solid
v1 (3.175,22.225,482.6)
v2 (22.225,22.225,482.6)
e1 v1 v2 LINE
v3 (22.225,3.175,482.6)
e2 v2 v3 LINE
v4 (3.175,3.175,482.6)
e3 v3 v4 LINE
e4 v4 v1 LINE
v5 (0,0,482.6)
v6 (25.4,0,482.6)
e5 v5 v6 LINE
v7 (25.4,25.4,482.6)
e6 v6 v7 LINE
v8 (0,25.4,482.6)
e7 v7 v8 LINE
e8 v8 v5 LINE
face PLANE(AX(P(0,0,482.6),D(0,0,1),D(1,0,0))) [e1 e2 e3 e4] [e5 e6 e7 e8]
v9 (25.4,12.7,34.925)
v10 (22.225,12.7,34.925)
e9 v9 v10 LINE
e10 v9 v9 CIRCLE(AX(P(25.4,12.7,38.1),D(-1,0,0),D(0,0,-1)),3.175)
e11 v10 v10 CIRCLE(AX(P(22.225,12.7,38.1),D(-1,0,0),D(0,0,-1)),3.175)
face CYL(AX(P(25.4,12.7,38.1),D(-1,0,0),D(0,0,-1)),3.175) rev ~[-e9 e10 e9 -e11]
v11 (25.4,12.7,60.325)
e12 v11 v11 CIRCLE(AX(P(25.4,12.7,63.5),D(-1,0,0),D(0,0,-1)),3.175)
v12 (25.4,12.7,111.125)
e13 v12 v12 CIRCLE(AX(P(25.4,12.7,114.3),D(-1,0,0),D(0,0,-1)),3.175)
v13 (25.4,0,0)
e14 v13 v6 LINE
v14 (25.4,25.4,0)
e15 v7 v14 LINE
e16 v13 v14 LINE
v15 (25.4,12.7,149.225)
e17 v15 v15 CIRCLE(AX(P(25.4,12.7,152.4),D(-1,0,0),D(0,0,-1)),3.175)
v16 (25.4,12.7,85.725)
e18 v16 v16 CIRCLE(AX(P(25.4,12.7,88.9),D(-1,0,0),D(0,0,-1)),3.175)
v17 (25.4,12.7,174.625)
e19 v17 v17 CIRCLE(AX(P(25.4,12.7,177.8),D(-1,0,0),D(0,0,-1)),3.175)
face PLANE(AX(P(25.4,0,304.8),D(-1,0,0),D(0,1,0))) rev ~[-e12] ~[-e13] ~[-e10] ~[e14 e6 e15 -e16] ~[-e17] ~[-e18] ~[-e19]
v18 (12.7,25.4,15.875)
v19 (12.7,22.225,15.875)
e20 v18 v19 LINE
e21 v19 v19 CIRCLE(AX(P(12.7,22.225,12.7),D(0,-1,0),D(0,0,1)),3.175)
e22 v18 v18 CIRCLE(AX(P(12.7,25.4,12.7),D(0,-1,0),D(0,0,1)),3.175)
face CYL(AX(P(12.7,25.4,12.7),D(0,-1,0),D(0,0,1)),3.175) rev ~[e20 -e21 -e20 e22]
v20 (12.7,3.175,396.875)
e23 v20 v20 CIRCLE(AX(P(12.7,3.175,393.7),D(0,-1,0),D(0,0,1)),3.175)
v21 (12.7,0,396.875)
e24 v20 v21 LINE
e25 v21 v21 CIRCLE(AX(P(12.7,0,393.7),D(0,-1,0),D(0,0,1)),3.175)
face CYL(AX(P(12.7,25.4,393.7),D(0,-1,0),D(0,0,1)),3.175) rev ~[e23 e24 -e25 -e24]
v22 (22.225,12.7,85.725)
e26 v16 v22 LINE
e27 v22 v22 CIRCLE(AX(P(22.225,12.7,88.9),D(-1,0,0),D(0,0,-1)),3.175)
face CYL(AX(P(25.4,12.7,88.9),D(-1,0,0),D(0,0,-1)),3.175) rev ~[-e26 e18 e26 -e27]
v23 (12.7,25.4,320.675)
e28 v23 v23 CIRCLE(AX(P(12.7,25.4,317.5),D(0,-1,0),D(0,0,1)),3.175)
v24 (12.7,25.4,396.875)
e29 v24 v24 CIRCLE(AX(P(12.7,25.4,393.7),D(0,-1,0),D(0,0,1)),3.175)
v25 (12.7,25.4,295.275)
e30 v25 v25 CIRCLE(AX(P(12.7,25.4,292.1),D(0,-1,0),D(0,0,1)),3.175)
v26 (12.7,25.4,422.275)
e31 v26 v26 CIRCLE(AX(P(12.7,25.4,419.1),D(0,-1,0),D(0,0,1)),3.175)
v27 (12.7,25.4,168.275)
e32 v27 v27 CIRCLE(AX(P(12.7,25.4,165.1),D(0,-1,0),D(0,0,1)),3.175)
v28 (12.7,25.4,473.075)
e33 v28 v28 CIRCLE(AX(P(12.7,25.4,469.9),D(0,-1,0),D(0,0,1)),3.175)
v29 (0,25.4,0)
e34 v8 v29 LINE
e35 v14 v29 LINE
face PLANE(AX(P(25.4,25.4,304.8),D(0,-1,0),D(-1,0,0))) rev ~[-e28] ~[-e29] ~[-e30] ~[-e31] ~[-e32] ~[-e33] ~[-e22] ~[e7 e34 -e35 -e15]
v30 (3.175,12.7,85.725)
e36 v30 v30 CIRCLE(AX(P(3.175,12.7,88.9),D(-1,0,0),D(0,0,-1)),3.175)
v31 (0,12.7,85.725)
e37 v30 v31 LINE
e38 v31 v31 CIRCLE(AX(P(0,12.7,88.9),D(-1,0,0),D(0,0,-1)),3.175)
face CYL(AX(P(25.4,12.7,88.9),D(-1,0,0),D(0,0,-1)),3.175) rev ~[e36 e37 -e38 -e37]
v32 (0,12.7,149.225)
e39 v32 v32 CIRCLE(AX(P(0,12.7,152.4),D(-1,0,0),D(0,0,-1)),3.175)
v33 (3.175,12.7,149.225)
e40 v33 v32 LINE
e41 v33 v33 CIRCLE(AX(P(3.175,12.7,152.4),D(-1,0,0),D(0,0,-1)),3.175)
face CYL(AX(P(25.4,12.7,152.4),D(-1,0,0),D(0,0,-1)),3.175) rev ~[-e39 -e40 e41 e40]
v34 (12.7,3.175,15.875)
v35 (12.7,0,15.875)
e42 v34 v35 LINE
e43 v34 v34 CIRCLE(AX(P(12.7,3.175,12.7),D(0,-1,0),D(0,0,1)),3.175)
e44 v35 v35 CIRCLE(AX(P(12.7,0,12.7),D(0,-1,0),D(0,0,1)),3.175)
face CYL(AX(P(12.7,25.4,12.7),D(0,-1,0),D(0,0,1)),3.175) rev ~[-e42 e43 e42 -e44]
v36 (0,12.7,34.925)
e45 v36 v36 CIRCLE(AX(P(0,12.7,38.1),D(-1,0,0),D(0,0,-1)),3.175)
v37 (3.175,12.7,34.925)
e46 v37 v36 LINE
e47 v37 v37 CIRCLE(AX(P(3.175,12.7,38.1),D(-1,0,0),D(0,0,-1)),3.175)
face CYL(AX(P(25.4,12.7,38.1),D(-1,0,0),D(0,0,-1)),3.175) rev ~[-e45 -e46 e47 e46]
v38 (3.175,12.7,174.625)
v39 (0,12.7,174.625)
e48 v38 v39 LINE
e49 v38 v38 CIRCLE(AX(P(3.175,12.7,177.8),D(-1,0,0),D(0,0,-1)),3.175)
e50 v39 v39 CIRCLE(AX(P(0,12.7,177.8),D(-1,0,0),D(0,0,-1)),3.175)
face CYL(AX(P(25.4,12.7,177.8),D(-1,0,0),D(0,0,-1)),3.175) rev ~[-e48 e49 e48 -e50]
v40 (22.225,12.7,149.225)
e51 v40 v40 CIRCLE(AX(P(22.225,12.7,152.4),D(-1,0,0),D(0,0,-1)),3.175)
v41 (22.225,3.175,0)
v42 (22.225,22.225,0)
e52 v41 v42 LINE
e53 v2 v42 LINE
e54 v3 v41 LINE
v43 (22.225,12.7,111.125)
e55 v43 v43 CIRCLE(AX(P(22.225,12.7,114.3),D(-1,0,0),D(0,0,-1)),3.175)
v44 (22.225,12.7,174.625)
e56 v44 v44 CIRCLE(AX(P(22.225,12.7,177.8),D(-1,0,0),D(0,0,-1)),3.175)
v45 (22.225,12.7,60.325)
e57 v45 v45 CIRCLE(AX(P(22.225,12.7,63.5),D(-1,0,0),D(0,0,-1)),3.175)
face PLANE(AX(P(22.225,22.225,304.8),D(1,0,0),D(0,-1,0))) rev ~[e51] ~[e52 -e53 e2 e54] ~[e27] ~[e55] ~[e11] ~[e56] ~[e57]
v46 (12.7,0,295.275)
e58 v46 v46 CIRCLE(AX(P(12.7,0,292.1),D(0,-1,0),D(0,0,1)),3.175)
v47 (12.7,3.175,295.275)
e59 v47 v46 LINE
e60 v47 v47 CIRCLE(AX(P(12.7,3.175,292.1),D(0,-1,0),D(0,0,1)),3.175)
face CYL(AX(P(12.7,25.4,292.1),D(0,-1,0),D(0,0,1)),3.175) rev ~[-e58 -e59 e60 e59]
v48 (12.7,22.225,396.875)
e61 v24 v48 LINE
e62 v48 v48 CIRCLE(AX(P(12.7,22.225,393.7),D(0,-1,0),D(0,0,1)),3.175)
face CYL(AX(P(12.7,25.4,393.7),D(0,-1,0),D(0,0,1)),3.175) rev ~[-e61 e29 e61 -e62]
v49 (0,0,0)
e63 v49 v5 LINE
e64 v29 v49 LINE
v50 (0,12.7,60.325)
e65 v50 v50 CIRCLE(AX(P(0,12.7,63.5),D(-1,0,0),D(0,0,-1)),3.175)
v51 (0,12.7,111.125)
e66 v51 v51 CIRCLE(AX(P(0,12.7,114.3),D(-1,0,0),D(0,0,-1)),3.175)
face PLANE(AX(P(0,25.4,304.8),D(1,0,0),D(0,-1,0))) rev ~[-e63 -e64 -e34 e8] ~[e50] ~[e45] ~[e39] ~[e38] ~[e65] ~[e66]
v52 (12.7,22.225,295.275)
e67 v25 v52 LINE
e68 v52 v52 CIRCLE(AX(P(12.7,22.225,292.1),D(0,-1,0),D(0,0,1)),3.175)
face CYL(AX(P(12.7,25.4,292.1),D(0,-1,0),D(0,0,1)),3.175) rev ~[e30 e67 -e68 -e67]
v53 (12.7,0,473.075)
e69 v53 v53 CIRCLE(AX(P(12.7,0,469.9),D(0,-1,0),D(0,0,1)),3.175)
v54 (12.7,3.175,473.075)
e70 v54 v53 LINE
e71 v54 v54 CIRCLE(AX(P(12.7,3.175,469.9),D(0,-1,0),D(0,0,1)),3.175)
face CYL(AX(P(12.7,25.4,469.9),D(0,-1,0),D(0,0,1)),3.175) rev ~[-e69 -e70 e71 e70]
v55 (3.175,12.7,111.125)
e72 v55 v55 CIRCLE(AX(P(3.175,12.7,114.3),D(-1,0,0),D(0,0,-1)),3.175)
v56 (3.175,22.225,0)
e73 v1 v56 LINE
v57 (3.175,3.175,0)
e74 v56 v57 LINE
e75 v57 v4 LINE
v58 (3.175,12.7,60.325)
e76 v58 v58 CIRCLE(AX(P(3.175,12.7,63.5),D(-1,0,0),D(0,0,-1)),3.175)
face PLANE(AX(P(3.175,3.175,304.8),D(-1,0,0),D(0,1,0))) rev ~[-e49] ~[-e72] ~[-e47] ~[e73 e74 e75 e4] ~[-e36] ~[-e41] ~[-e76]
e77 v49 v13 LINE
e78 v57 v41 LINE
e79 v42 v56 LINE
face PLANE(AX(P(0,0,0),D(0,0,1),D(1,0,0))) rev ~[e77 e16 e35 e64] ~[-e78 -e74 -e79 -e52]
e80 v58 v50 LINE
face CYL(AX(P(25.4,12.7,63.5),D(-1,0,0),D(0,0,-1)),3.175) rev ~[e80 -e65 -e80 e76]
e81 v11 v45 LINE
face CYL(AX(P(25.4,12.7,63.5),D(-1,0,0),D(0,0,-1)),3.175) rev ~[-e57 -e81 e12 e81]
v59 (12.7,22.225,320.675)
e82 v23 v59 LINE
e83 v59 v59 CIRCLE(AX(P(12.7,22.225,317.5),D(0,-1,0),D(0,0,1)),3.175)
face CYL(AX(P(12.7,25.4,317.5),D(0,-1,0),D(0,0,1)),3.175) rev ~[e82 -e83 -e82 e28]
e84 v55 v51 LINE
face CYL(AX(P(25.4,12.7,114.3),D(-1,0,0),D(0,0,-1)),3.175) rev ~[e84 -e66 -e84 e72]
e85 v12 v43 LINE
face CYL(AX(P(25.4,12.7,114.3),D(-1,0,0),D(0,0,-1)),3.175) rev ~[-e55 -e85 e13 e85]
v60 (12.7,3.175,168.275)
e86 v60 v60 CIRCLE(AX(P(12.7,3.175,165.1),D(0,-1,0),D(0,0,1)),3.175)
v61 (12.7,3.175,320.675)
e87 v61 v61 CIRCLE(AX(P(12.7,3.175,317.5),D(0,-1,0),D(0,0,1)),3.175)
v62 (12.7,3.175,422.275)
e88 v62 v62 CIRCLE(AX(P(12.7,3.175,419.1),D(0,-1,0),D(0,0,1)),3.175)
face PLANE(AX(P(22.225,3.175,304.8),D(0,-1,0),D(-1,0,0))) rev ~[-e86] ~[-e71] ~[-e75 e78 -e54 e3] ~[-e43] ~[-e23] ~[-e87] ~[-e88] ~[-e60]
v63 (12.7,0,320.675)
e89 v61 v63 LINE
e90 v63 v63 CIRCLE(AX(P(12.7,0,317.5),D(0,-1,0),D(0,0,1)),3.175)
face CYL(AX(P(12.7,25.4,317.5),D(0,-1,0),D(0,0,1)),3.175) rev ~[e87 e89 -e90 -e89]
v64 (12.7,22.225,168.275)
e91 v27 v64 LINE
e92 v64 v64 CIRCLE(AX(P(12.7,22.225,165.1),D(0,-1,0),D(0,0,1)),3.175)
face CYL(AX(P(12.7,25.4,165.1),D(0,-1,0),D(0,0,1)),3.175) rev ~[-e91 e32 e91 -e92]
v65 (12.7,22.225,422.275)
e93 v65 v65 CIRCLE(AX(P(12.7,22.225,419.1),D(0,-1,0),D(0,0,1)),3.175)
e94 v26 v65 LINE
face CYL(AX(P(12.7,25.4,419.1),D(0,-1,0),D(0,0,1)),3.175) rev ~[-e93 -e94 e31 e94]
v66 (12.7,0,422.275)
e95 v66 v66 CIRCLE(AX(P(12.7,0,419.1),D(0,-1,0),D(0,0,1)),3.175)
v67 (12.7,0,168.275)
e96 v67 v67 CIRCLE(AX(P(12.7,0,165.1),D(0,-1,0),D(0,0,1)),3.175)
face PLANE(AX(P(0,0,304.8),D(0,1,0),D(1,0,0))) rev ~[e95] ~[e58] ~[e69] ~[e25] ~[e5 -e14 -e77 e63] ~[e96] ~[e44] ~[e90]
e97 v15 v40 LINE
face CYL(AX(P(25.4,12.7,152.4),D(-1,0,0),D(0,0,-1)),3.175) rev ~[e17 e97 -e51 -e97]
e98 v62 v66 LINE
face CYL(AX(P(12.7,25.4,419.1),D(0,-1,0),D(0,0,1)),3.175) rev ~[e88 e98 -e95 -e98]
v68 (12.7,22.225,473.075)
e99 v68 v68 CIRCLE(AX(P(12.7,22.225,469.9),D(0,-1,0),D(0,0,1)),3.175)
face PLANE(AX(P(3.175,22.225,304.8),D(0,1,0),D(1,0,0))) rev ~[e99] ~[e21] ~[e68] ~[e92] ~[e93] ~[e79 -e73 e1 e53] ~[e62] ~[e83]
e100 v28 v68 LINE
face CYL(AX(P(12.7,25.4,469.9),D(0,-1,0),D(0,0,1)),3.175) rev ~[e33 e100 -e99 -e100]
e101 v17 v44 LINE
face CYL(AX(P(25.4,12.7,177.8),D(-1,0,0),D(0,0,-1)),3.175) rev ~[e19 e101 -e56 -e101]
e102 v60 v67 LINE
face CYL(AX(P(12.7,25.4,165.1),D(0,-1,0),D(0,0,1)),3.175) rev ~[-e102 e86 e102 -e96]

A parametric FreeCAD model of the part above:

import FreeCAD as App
import Part
import Sketcher
from FreeCAD import Vector
Q = App.Units.Quantity


def add_polygon(sketch, points):
    """Adds a closed chain of lines whose ends are joined by coincident constraints."""
    first, n = sketch.GeometryCount, len(points)
    for a, b in zip(points, points[1:] + points[:1]):
        sketch.addGeometry(Part.LineSegment(App.Vector(*a, 0), App.Vector(*b, 0)), False)
    for i in range(n):
        sketch.addConstraint(Sketcher.Constraint("Coincident", first + i, 2, first + (i + 1) % n, 1))

doc = App.newDocument("Part")
body = doc.addObject("PartDesign::Body", "Body")

sketch1 = doc.addObject("Sketcher::SketchObject", "Sketch")
body.addObject(sketch1)
sketch1.AttachmentSupport = (doc.XY_Plane, [""])
sketch1.MapMode = "FlatFace"
add_polygon(sketch1, [(0, 25.4), (0, 0), (25.4, 0), (25.4, 25.4)])
add_polygon(sketch1, [(22.225, 3.175), (3.175, 3.175), (3.175, 22.225), (22.225, 22.225)])
sketch1.addConstraint([
    Sketcher.Constraint("Vertical", 0),
    Sketcher.Constraint("Horizontal", 1),
    Sketcher.Constraint("Vertical", 2),
    Sketcher.Constraint("Horizontal", 3),
    Sketcher.Constraint("Horizontal", 4),
    Sketcher.Constraint("Vertical", 5),
    Sketcher.Constraint("Horizontal", 6),
    Sketcher.Constraint("Vertical", 7),
    Sketcher.Constraint("Coincident", 0, 2, -1, 1),
    Sketcher.Constraint("Equal", 3, 0),
    Sketcher.Constraint("Equal", 6, 5),
    Sketcher.Constraint("DistanceX", 1, 1, 1, 2, Q("1 in")),
    Sketcher.Constraint("DistanceX", 4, 2, 4, 1, Q("0.75 in")),
    Sketcher.Constraint("DistanceX", -1, 1, 4, 2, Q("0.125 in")),
    Sketcher.Constraint("DistanceY", -1, 1, 4, 2, Q("0.125 in")),
])
pad1 = doc.addObject("PartDesign::Pad", "Pad")
body.addObject(pad1)
pad1.Profile = sketch1
pad1.Length = Q("12 in")

sketch2 = doc.addObject("Sketcher::SketchObject", "Sketch001")
body.addObject(sketch2)
sketch2.AttachmentSupport = (doc.YZ_Plane, [""])
sketch2.MapMode = "FlatFace"
sketch2.AttachmentOffset = App.Placement(Vector(0, 0, 1 * 25.4), App.Rotation())
sketch2.addGeometry([
    Part.Circle(Vector(12.7, 38.1, 0), Vector(0, 0, 1), 3.175),
    Part.Circle(Vector(12.7, 63.5, 0), Vector(0, 0, 1), 3.175),
    Part.Circle(Vector(12.7, 88.9, 0), Vector(0, 0, 1), 3.175),
], False)
sketch2.addConstraint([
    Sketcher.Constraint("Equal", 0, 1),
    Sketcher.Constraint("Equal", 1, 2),
    Sketcher.Constraint("Vertical", 0, 3, 1, 3),
    Sketcher.Constraint("Vertical", 1, 3, 2, 3),
    Sketcher.Constraint("Diameter", 0, Q("0.25 in")),
    Sketcher.Constraint("DistanceY", 0, 3, 1, 3, Q("1 in")),
    Sketcher.Constraint("DistanceY", 1, 3, 2, 3, Q("1 in")),
    Sketcher.Constraint("DistanceX", -1, 1, 0, 3, Q("0.5 in")),
    Sketcher.Constraint("DistanceY", -1, 1, 0, 3, Q("1.5 in")),
])
doc.recompute()
hole = doc.addObject("PartDesign::Hole", "Hole")
body.addObject(hole)
hole.Profile = sketch2
hole.ThreadType = "None"
hole.Diameter = Q("0.25 in")
hole.DepthType = "ThroughAll"

sketch3 = doc.addObject("Sketcher::SketchObject", "Sketch002")
body.addObject(sketch3)
sketch3.AttachmentSupport = (doc.XZ_Plane, [""])
sketch3.MapMode = "FlatFace"
sketch3.AttachmentOffset = App.Placement(Vector(0, 0, -1 * 25.4), App.Rotation())
sketch3.addGeometry([
    Part.Circle(Vector(12.7, 292.1, 0), Vector(0, 0, 1), 3.175),
    Part.Circle(Vector(12.7, 12.7, 0), Vector(0, 0, 1), 3.175),
    Part.Circle(Vector(12.7, 165.1, 0), Vector(0, 0, 1), 3.175),
], False)
sketch3.addConstraint([
    Sketcher.Constraint("Equal", 0, 1),
    Sketcher.Constraint("Equal", 1, 2),
    Sketcher.Constraint("Vertical", 0, 3, 1, 3),
    Sketcher.Constraint("Vertical", 1, 3, 2, 3),
    Sketcher.Constraint("Diameter", 0, Q("0.25 in")),
    Sketcher.Constraint("DistanceY", 1, 3, 0, 3, Q("11 in")),
    Sketcher.Constraint("DistanceY", 2, 3, 0, 3, Q("5 in")),
    Sketcher.Constraint("DistanceX", -1, 1, 0, 3, Q("0.5 in")),
    Sketcher.Constraint("DistanceY", -1, 1, 0, 3, Q("11.5 in")),
])
doc.recompute()
hole2 = doc.addObject("PartDesign::Hole", "Hole001")
body.addObject(hole2)
hole2.Profile = sketch3
hole2.ThreadType = "None"
hole2.Diameter = Q("0.25 in")
hole2.DepthType = "ThroughAll"
hole2.Reversed = True

sketch4 = doc.addObject("Sketcher::SketchObject", "Sketch003")
body.addObject(sketch4)
sketch4.AttachmentSupport = (doc.YZ_Plane, [""])
sketch4.MapMode = "FlatFace"
sketch4.AttachmentOffset = App.Placement(Vector(0, 0, 1 * 25.4), App.Rotation())
sketch4.addGeometry([
    Part.Circle(Vector(12.7, 177.8, 0), Vector(0, 0, 1), 3.175),
    Part.Circle(Vector(12.7, 114.3, 0), Vector(0, 0, 1), 3.175),
    Part.Circle(Vector(12.7, 152.4, 0), Vector(0, 0, 1), 3.175),
], False)
sketch4.addConstraint([
    Sketcher.Constraint("Equal", 0, 1),
    Sketcher.Constraint("Equal", 1, 2),
    Sketcher.Constraint("Vertical", 0, 3, 1, 3),
    Sketcher.Constraint("Vertical", 1, 3, 2, 3),
    Sketcher.Constraint("Diameter", 0, Q("0.25 in")),
    Sketcher.Constraint("DistanceY", -1, 1, 0, 3, Q("7 in")),
    Sketcher.Constraint("DistanceY", -1, 1, 2, 3, Q("6 in")),
    Sketcher.Constraint("DistanceX", -1, 1, 0, 3, Q("0.5 in")),
    Sketcher.Constraint("DistanceY", -1, 1, 1, 3, Q("4.5 in")),
])
doc.recompute()
hole3 = doc.addObject("PartDesign::Hole", "Hole002")
body.addObject(hole3)
hole3.Profile = sketch4
hole3.ThreadType = "None"
hole3.Diameter = Q("0.25 in")
hole3.DepthType = "ThroughAll"

sketch5 = doc.addObject("Sketcher::SketchObject", "Sketch004")
body.addObject(sketch5)
sketch5.AttachmentSupport = (doc.XY_Plane, [""])
sketch5.MapMode = "FlatFace"
sketch5.AttachmentOffset = App.Placement(Vector(0, 0, 12 * 25.4), App.Rotation())
add_polygon(sketch5, [(0, 25.4), (0, 0), (25.4, 0), (25.4, 25.4)])
add_polygon(sketch5, [(22.225, 3.175), (3.175, 3.175), (3.175, 22.225), (22.225, 22.225)])
sketch5.addConstraint([
    Sketcher.Constraint("Vertical", 0),
    Sketcher.Constraint("Horizontal", 1),
    Sketcher.Constraint("Vertical", 2),
    Sketcher.Constraint("Horizontal", 3),
    Sketcher.Constraint("Horizontal", 4),
    Sketcher.Constraint("Vertical", 5),
    Sketcher.Constraint("Horizontal", 6),
    Sketcher.Constraint("Vertical", 7),
    Sketcher.Constraint("Coincident", 0, 2, -1, 1),
    Sketcher.Constraint("Equal", 3, 0),
    Sketcher.Constraint("Equal", 6, 5),
    Sketcher.Constraint("DistanceX", 1, 1, 1, 2, Q("1 in")),
    Sketcher.Constraint("DistanceX", 4, 2, 4, 1, Q("0.75 in")),
    Sketcher.Constraint("DistanceX", -1, 1, 4, 2, Q("0.125 in")),
    Sketcher.Constraint("DistanceY", -1, 1, 4, 2, Q("0.125 in")),
])
pad2 = doc.addObject("PartDesign::Pad", "Pad001")
body.addObject(pad2)
pad2.Profile = sketch5
pad2.Length = Q("7 in")

sketch6 = doc.addObject("Sketcher::SketchObject", "Sketch005")
body.addObject(sketch6)
sketch6.AttachmentSupport = (doc.XZ_Plane, [""])
sketch6.MapMode = "FlatFace"
sketch6.AttachmentOffset = App.Placement(Vector(0, 0, -1 * 25.4), App.Rotation())
sketch6.addGeometry([
    Part.Circle(Vector(12.7, 469.9, 0), Vector(0, 0, 1), 3.175),
    Part.Circle(Vector(12.7, 419.1, 0), Vector(0, 0, 1), 3.175),
], False)
sketch6.addConstraint([
    Sketcher.Constraint("Equal", 0, 1),
    Sketcher.Constraint("Vertical", 0, 3, 1, 3),
    Sketcher.Constraint("Diameter", 0, Q("0.25 in")),
    Sketcher.Constraint("DistanceY", 1, 3, 0, 3, Q("2 in")),
    Sketcher.Constraint("DistanceX", -1, 1, 0, 3, Q("0.5 in")),
    Sketcher.Constraint("DistanceY", -1, 1, 0, 3, Q("18.5 in")),
])
doc.recompute()
hole4 = doc.addObject("PartDesign::Hole", "Hole003")
body.addObject(hole4)
hole4.Profile = sketch6
hole4.ThreadType = "None"
hole4.Diameter = Q("0.25 in")
hole4.DepthType = "Dimension"
hole4.Depth = Q("1 in")
hole4.DrillPoint = "Angled"
hole4.DrillPointAngle = 118
hole4.Reversed = True

sketch7 = doc.addObject("Sketcher::SketchObject", "Sketch006")
body.addObject(sketch7)
sketch7.AttachmentSupport = (doc.XZ_Plane, [""])
sketch7.MapMode = "FlatFace"
sketch7.AttachmentOffset = App.Placement(Vector(0, 0, -1 * 25.4), App.Rotation())
sketch7.addGeometry([
    Part.Circle(Vector(12.7, 393.7, 0), Vector(0, 0, 1), 3.175),
    Part.Circle(Vector(12.7, 317.5, 0), Vector(0, 0, 1), 3.175),
], False)
sketch7.addConstraint([
    Sketcher.Constraint("Equal", 0, 1),
    Sketcher.Constraint("Vertical", 0, 3, 1, 3),
    Sketcher.Constraint("Diameter", 0, Q("0.25 in")),
    Sketcher.Constraint("DistanceY", 1, 3, 0, 3, Q("3 in")),
    Sketcher.Constraint("DistanceX", -1, 1, 0, 3, Q("0.5 in")),
    Sketcher.Constraint("DistanceY", -1, 1, 0, 3, Q("15.5 in")),
])
doc.recompute()
hole5 = doc.addObject("PartDesign::Hole", "Hole004")
body.addObject(hole5)
hole5.Profile = sketch7
hole5.ThreadType = "None"
hole5.Diameter = Q("0.25 in")
hole5.DepthType = "ThroughAll"
hole5.Reversed = True

doc.recompute()
